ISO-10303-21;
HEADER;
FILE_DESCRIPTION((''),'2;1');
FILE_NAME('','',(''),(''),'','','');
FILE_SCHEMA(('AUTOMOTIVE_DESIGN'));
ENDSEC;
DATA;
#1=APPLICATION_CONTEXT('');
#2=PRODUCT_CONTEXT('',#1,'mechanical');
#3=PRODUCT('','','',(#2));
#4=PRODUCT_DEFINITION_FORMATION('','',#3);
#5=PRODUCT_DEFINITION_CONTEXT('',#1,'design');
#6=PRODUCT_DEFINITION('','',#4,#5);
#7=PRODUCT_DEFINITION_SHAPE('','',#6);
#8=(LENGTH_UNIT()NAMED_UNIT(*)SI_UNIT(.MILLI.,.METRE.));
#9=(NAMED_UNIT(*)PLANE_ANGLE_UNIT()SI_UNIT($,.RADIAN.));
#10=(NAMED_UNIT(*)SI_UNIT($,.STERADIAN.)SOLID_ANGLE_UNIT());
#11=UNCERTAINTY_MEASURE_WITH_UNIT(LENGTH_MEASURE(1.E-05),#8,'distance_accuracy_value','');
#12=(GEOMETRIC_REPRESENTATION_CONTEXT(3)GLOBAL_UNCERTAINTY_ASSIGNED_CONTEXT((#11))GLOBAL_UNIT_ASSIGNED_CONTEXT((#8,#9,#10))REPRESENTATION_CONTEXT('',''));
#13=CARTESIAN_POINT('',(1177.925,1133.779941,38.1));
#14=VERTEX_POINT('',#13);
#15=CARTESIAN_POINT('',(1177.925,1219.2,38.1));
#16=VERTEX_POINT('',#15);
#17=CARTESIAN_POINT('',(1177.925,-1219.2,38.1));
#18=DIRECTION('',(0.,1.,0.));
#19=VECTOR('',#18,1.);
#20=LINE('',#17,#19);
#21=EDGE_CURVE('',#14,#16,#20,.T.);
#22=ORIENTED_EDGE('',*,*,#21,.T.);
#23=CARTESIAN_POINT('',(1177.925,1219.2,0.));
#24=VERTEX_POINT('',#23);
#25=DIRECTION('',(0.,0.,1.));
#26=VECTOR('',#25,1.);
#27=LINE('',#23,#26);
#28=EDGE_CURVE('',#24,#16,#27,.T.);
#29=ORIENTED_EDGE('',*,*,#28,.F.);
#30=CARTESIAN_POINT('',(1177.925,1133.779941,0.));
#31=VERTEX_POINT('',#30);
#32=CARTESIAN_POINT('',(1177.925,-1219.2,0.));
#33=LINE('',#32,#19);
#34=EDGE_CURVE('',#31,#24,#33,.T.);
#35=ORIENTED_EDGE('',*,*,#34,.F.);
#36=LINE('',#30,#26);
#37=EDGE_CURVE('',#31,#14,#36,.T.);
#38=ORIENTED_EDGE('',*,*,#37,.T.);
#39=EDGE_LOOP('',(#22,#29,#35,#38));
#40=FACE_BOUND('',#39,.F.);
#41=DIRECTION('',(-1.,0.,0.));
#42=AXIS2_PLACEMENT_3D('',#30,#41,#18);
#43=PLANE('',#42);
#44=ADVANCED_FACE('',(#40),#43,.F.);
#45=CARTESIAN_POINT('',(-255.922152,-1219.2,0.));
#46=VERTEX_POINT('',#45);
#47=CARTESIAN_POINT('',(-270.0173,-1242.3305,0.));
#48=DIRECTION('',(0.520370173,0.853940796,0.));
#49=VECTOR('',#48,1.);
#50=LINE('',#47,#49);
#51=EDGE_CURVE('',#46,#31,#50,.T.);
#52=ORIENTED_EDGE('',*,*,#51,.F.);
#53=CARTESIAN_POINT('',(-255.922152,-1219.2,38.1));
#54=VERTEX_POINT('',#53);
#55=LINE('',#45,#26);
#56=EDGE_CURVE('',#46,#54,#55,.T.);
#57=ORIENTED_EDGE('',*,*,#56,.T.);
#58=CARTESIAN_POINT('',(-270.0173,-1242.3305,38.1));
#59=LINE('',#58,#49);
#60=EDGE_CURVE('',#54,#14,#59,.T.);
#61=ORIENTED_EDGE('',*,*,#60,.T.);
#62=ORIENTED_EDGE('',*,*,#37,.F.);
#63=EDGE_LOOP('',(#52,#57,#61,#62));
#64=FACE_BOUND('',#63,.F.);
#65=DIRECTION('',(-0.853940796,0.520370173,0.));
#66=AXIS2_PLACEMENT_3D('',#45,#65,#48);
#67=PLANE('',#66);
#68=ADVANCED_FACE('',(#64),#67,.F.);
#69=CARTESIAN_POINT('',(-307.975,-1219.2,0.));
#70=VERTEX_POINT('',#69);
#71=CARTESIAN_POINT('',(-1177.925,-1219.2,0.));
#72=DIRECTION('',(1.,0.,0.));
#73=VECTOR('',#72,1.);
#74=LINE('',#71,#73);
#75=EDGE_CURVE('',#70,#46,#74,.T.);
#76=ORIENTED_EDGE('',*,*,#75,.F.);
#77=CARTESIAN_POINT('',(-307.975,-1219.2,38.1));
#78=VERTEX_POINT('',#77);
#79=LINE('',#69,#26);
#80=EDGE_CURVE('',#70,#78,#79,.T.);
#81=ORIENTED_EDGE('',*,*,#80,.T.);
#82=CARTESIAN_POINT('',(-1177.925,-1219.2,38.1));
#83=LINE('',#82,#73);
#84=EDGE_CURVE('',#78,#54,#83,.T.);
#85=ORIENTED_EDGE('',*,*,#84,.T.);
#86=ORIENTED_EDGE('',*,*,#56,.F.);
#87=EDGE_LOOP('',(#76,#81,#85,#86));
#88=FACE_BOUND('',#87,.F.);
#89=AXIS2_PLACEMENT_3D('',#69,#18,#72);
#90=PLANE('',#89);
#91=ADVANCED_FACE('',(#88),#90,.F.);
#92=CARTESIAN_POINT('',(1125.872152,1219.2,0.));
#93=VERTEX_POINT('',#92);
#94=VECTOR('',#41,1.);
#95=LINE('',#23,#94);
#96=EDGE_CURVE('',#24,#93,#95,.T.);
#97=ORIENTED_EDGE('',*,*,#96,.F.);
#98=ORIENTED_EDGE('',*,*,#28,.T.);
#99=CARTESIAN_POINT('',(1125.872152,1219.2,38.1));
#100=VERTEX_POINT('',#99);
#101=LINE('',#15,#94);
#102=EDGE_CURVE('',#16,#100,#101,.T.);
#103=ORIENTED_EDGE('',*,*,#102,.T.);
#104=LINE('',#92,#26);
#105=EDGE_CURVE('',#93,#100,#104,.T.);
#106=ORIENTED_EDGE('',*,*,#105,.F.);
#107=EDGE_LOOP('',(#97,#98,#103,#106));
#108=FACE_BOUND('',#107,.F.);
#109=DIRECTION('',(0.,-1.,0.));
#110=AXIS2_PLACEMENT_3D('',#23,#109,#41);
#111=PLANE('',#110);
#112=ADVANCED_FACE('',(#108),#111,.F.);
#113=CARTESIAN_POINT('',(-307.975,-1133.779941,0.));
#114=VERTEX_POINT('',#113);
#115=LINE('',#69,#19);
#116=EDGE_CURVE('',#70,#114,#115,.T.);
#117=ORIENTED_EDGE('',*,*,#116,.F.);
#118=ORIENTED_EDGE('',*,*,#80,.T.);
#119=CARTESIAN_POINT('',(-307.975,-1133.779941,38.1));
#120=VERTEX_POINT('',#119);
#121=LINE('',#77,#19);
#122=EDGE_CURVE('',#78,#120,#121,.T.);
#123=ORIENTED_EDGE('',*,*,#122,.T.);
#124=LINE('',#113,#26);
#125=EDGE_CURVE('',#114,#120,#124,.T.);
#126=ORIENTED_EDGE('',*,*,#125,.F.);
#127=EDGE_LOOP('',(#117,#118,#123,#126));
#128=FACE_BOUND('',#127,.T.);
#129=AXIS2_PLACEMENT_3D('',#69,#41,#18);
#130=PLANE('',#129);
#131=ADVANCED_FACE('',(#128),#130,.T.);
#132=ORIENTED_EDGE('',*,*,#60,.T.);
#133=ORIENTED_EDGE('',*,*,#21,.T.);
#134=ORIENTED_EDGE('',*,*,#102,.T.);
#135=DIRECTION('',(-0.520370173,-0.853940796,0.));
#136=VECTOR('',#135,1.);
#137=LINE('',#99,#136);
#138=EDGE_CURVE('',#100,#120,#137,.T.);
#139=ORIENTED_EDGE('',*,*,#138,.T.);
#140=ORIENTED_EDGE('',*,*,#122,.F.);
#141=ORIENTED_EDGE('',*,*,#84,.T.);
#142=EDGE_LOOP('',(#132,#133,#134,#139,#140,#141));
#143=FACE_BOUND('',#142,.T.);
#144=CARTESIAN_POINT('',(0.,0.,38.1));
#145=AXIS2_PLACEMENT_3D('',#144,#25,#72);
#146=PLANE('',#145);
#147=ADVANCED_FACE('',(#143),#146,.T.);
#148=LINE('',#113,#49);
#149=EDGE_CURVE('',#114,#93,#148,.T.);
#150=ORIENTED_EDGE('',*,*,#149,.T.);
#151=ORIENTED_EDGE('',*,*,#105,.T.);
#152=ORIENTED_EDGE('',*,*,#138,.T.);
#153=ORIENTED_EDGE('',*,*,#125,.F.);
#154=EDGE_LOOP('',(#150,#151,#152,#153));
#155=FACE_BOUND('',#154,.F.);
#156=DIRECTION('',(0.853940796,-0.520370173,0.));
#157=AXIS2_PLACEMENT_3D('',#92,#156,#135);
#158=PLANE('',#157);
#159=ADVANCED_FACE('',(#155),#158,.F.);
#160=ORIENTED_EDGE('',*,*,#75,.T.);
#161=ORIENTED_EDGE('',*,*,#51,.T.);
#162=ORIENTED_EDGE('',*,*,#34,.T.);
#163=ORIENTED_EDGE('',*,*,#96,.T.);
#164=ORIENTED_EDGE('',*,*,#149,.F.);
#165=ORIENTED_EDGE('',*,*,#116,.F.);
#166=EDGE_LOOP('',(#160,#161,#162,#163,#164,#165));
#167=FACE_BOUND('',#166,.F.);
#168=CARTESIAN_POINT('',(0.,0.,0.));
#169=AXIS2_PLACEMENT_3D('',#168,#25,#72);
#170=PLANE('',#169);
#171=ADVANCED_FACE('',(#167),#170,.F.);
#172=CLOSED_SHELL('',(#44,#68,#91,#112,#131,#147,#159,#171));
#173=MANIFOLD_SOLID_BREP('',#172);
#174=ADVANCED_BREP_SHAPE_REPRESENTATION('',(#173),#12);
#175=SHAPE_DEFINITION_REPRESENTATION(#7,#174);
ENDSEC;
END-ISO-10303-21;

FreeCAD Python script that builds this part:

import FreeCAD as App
import Part
import Sketcher
from FreeCAD import Vector
Q = App.Units.Quantity

doc = App.newDocument("Part")
body = doc.addObject("PartDesign::Body", "Body")

# Sketch on XY plane
sketch1 = doc.addObject("Sketcher::SketchObject", "Sketch")
body.addObject(sketch1)
sketch1.AttachmentSupport = (doc.XY_Plane, [""])
sketch1.MapMode = "FlatFace"
sketch1.addGeometry(Part.LineSegment(Vector(1178, 1134, 0), Vector(1178, 1219, 0)), False)
sketch1.addGeometry(Part.LineSegment(Vector(1178, 1219, 0), Vector(1126, 1219, 0)), False)
sketch1.addGeometry(Part.LineSegment(Vector(1126, 1219, 0), Vector(-308, -1134, 0)), False)
sketch1.addGeometry(Part.LineSegment(Vector(-308, -1134, 0), Vector(-308, -1219, 0)), False)
sketch1.addGeometry(Part.LineSegment(Vector(-308, -1219, 0), Vector(-256, -1219, 0)), False)
sketch1.addGeometry(Part.LineSegment(Vector(-256, -1219, 0), Vector(1178, 1134, 0)), False)
sketch1.addConstraint(Sketcher.Constraint("Coincident", 0, 2, 1, 1))
sketch1.addConstraint(Sketcher.Constraint("Coincident", 1, 2, 2, 1))
sketch1.addConstraint(Sketcher.Constraint("Coincident", 2, 2, 3, 1))
sketch1.addConstraint(Sketcher.Constraint("Coincident", 3, 2, 4, 1))
sketch1.addConstraint(Sketcher.Constraint("Coincident", 4, 2, 5, 1))
sketch1.addConstraint(Sketcher.Constraint("Coincident", 5, 2, 0, 1))
sketch1.addConstraint(Sketcher.Constraint("Vertical", 0))
sketch1.addConstraint(Sketcher.Constraint("Horizontal", 1))
sketch1.addConstraint(Sketcher.Constraint("Vertical", 3))
sketch1.addConstraint(Sketcher.Constraint("Horizontal", 4))
sketch1.addConstraint(Sketcher.Constraint("Parallel", 2, 5))
sketch1.addConstraint(Sketcher.Constraint("Equal", 1, 4))
sketch1.addConstraint(Sketcher.Constraint("DistanceY", 3, 2, 1, 2, Q("96 in")))
sketch1.addConstraint(Sketcher.Constraint("DistanceY", -1, 1, 0, 2, Q("48 in")))
sketch1.addConstraint(Sketcher.Constraint("DistanceX", 2, 2, 0, 2, Q("58.5 in")))
sketch1.addConstraint(Sketcher.Constraint("DistanceY", 0, 1, 0, 2, Q("3.363 in")))
sketch1.addConstraint(Sketcher.Constraint("DistanceX", -1, 1, 0, 2, Q("46.375 in")))
sketch1.addConstraint(Sketcher.Constraint("DistanceX", 1, 2, 1, 1, Q("52.0528 mm")))
pad1 = doc.addObject("PartDesign::Pad", "Pad")
body.addObject(pad1)
pad1.Profile = sketch1
pad1.Length = Q("1.5 in")

doc.recompute()
